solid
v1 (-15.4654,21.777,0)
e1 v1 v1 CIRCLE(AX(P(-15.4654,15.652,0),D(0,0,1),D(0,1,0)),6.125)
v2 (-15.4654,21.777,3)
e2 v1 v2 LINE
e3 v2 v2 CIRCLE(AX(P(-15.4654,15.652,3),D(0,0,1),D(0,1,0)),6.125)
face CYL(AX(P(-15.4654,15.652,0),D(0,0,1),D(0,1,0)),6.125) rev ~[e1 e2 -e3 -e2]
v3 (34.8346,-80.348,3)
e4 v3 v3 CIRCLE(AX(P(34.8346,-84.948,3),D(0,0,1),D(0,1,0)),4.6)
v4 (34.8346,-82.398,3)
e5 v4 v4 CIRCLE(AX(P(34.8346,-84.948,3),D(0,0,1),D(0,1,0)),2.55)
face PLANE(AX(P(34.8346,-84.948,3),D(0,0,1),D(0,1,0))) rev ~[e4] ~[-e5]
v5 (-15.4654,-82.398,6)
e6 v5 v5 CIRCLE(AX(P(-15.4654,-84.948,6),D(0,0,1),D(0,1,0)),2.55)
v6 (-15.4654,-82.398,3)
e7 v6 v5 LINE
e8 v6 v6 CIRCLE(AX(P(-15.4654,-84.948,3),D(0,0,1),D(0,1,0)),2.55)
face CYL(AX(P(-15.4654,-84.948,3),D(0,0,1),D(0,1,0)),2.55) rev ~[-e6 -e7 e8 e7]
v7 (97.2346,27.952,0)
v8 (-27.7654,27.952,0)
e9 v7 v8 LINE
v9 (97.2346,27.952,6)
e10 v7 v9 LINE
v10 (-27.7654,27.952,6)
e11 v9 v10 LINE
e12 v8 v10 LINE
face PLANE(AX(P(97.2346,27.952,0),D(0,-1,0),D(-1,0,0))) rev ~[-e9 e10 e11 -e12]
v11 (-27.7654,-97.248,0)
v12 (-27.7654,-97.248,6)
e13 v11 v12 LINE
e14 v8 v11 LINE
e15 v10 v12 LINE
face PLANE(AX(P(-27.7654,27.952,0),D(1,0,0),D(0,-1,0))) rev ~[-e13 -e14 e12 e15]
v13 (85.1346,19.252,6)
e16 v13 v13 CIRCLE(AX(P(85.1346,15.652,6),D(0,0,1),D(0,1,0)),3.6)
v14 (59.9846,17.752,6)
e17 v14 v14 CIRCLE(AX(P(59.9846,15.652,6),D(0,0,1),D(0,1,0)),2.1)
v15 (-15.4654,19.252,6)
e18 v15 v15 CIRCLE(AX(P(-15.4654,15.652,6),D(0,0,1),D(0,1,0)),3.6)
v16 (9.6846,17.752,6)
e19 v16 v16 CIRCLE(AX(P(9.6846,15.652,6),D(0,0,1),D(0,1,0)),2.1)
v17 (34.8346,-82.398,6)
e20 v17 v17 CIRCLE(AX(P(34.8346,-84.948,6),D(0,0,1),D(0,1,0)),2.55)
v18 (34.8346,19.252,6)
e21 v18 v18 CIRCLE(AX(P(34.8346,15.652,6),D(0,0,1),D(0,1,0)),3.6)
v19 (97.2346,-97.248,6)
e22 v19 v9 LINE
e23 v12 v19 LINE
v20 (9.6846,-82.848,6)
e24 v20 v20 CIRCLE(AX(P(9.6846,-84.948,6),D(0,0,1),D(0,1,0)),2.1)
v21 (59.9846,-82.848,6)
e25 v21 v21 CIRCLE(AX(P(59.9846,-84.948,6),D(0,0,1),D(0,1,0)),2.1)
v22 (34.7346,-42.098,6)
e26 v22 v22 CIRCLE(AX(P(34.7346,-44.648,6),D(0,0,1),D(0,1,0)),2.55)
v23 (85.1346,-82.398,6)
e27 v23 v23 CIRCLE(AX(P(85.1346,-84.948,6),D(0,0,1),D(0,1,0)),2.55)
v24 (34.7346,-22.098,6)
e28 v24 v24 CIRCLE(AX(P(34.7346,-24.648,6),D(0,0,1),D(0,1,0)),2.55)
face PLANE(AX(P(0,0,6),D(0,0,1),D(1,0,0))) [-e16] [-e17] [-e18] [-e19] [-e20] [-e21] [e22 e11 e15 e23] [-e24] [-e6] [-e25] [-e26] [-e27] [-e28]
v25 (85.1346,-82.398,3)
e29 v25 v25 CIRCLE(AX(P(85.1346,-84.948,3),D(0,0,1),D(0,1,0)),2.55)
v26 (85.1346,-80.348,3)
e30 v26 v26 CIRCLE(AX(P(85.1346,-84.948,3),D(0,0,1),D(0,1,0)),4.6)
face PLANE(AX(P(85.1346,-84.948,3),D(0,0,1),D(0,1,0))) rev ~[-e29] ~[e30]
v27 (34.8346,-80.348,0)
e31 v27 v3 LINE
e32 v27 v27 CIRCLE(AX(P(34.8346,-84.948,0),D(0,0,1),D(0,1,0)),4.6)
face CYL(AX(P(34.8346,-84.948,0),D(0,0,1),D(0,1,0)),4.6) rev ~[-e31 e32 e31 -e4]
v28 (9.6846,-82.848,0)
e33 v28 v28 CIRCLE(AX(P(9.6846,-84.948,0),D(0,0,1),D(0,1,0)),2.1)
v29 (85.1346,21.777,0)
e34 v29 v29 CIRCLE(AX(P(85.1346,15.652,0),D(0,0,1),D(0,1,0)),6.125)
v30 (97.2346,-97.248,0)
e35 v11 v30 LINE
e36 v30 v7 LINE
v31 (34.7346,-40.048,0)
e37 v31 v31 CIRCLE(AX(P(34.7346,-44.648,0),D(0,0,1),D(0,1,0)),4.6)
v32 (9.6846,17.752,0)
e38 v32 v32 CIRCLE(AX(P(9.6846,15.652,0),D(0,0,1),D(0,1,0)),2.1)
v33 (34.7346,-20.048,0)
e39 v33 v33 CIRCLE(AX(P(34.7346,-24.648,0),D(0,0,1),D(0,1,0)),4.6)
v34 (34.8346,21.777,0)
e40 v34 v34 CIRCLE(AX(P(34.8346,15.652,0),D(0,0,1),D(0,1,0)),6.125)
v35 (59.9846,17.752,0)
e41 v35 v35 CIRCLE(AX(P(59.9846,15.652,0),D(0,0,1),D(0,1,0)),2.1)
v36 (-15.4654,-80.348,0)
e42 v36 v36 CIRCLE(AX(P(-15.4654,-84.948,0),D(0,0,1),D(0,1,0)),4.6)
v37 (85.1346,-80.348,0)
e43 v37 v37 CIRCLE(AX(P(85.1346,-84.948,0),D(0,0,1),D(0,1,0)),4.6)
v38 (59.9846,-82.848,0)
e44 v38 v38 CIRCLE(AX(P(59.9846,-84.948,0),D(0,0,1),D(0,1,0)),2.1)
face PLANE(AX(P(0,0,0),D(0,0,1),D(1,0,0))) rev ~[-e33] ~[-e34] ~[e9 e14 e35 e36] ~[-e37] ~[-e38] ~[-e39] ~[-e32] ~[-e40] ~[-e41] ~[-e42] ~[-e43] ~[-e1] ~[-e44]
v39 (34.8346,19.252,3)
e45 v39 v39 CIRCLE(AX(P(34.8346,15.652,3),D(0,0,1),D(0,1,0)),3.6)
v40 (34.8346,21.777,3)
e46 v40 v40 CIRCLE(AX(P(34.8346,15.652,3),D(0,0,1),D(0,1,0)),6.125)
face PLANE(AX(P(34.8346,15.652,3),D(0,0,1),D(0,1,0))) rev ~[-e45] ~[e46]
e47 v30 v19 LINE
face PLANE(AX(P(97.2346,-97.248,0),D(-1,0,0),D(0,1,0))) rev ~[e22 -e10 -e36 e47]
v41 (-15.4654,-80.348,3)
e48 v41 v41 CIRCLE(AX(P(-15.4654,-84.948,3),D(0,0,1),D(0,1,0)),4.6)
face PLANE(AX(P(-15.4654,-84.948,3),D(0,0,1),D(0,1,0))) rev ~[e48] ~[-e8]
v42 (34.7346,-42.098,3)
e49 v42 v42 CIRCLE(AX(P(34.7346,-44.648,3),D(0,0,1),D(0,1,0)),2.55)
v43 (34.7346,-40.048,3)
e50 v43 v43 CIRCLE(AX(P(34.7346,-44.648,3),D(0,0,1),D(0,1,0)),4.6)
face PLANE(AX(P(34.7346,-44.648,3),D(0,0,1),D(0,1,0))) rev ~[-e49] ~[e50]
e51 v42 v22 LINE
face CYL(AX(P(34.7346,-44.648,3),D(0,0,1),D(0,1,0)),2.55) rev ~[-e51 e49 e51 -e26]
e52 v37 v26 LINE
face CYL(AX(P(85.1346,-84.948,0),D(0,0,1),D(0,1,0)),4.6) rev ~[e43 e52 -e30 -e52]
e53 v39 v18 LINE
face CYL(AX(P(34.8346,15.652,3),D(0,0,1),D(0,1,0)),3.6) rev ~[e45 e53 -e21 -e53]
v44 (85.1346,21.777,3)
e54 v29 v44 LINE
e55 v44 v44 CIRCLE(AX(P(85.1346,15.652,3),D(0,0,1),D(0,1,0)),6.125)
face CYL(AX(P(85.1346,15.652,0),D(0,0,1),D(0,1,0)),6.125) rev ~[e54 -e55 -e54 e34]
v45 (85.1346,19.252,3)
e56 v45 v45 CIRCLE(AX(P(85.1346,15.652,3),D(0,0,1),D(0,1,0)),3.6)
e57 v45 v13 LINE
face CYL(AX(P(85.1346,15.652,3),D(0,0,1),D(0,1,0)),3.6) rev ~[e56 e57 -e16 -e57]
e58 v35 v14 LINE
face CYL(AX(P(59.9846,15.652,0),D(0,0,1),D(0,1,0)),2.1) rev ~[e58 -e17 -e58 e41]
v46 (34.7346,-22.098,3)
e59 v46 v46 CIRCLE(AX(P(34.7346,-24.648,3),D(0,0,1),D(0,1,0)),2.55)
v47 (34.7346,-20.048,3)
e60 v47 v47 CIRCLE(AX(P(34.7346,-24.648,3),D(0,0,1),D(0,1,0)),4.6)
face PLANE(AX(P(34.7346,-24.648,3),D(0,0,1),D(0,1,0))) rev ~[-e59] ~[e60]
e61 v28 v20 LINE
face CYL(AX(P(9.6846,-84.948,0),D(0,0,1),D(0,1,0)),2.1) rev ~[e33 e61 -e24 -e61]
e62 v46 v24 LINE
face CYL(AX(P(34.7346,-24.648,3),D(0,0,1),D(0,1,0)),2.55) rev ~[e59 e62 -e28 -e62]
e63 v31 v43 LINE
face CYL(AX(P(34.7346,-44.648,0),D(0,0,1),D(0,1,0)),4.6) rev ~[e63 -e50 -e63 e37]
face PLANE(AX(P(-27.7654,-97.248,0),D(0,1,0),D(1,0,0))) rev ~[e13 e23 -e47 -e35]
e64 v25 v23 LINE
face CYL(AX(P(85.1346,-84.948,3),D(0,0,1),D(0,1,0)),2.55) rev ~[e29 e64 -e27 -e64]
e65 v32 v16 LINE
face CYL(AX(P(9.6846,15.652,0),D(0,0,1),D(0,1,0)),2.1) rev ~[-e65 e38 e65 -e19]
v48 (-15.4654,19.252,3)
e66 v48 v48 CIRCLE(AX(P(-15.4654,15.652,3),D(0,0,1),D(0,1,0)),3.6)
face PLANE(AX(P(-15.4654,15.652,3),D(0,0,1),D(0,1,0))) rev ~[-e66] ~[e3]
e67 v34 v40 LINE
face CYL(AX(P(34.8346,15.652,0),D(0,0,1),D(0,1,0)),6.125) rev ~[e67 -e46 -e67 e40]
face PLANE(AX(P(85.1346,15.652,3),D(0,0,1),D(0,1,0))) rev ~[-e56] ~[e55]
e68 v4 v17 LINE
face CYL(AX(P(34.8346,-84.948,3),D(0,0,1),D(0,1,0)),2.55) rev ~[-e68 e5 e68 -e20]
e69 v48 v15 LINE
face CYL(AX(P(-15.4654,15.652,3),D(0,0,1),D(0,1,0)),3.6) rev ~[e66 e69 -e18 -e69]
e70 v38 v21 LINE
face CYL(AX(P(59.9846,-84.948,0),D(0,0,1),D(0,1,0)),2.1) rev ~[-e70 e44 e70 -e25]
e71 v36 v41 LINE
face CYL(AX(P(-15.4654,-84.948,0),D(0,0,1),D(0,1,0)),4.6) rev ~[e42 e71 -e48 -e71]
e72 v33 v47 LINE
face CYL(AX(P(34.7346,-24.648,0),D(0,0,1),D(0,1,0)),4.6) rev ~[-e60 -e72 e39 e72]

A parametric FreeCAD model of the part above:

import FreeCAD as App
import Part
import Sketcher
from FreeCAD import Vector

doc = App.newDocument("Part")
params = doc.addObject("Spreadsheet::Sheet", "Params")
for row, (alias, value) in enumerate([
    ("sketch1_width", "125 mm"),
    ("sketch1_height", "125.2 mm"),
    ("pad1_length", "6 mm"),
    ("sketch2_diameter", "5.1 mm"),
    ("hole_diameter", "5.1 mm"),
    ("hole_cbore_diameter", "9.2 mm"),
    ("hole_cbore_depth", "3 mm"),
    ("sketch3_diameter", "7.2 mm"),
    ("hole2_diameter", "7.2 mm"),
    ("hole2_cbore_diameter", "12.25 mm"),
    ("hole2_cbore_depth", "3 mm"),
    ("sketch4_diameter", "5.1 mm"),
    ("hole3_diameter", "5.1 mm"),
    ("hole3_cbore_diameter", "9.2 mm"),
    ("hole3_cbore_depth", "3 mm"),
    ("sketch5_diameter", "4.2 mm"),
    ("hole4_diameter", "4.2 mm"),
], start=1):
    params.set(f"A{row}", alias)
    params.set(f"B{row}", "=" + value)
    params.setAlias(f"B{row}", alias)

body = doc.addObject("PartDesign::Body", "Body")

# Sketch on XY plane
sketch1 = doc.addObject("Sketcher::SketchObject", "Sketch")
body.addObject(sketch1)
sketch1.AttachmentSupport = (doc.XY_Plane, [""])
sketch1.MapMode = "FlatFace"
sketch1.addGeometry([
    Part.LineSegment(Vector(97.2346, -97.248, 0), Vector(97.2346, 27.952, 0)),
    Part.LineSegment(Vector(97.2346, 27.952, 0), Vector(-27.7654, 27.952, 0)),
    Part.LineSegment(Vector(-27.7654, 27.952, 0), Vector(-27.7654, -97.248, 0)),
    Part.LineSegment(Vector(-27.7654, -97.248, 0), Vector(97.2346, -97.248, 0)),
], False)
sketch1.addConstraint([
    Sketcher.Constraint("Coincident", 0, 2, 1, 1),
    Sketcher.Constraint("Coincident", 1, 2, 2, 1),
    Sketcher.Constraint("Coincident", 2, 2, 3, 1),
    Sketcher.Constraint("Coincident", 3, 2, 0, 1),
    Sketcher.Constraint("Vertical", 0),
    Sketcher.Constraint("Horizontal", 1),
    Sketcher.Constraint("Vertical", 2),
    Sketcher.Constraint("Horizontal", 3),
    Sketcher.Constraint("DistanceX", 1, 2, 1, 1, 125.0),
    Sketcher.Constraint("DistanceY", 0, 1, 0, 2, 125.2),
    Sketcher.Constraint("DistanceY", -1, 1, 0, 2, 27.952),
    Sketcher.Constraint("DistanceX", -1, 1, 0, 2, 97.2346),
])
sketch1.setExpression("Constraints[8]", "Params.sketch1_width")
sketch1.setExpression("Constraints[9]", "Params.sketch1_height")
pad1 = doc.addObject("PartDesign::Pad", "Pad")
body.addObject(pad1)
pad1.Profile = sketch1
pad1.setExpression("Length", "Params.pad1_length")

# Sketch on XY plane
sketch2 = doc.addObject("Sketcher::SketchObject", "Sketch001")
body.addObject(sketch2)
sketch2.AttachmentSupport = (doc.XY_Plane, [""])
sketch2.MapMode = "FlatFace"
sketch2.addGeometry([
    Part.Circle(Vector(85.1346, -84.948, 0), Vector(0, 0, 1), 2.55),
    Part.Circle(Vector(34.8346, -84.948, 0), Vector(0, 0, 1), 2.55),
    Part.Circle(Vector(-15.4654, -84.948, 0), Vector(0, 0, 1), 2.55),
], False)
sketch2.addConstraint([
    Sketcher.Constraint("Equal", 0, 1),
    Sketcher.Constraint("Equal", 1, 2),
    Sketcher.Constraint("Horizontal", 0, 3, 1, 3),
    Sketcher.Constraint("Horizontal", 1, 3, 2, 3),
    Sketcher.Constraint("Diameter", 0, 5.1),
    Sketcher.Constraint("DistanceX", 1, 3, 0, 3, 50.3),
    Sketcher.Constraint("DistanceX", 2, 3, 1, 3, 50.3),
    Sketcher.Constraint("DistanceY", 0, 3, -1, 1, 84.948),
    Sketcher.Constraint("DistanceX", -1, 1, 0, 3, 85.1346),
])
sketch2.setExpression("Constraints[4]", "Params.sketch2_diameter")
doc.recompute()
hole = doc.addObject("PartDesign::Hole", "Hole")
body.addObject(hole)
hole.Profile = sketch2
hole.ThreadType = "None"
hole.setExpression("Diameter", "Params.hole_diameter")
hole.DepthType = "ThroughAll"
hole.HoleCutType = "Counterbore"
hole.setExpression("HoleCutDiameter", "Params.hole_cbore_diameter")
hole.setExpression("HoleCutDepth", "Params.hole_cbore_depth")
hole.Reversed = True

# Sketch on XY plane
sketch3 = doc.addObject("Sketcher::SketchObject", "Sketch002")
body.addObject(sketch3)
sketch3.AttachmentSupport = (doc.XY_Plane, [""])
sketch3.MapMode = "FlatFace"
sketch3.addGeometry([
    Part.Circle(Vector(85.1346, 15.652, 0), Vector(0, 0, 1), 3.6),
    Part.Circle(Vector(34.8346, 15.652, 0), Vector(0, 0, 1), 3.6),
    Part.Circle(Vector(-15.4654, 15.652, 0), Vector(0, 0, 1), 3.6),
], False)
sketch3.addConstraint([
    Sketcher.Constraint("Equal", 0, 1),
    Sketcher.Constraint("Equal", 1, 2),
    Sketcher.Constraint("Horizontal", 0, 3, 1, 3),
    Sketcher.Constraint("Horizontal", 1, 3, 2, 3),
    Sketcher.Constraint("Diameter", 0, 7.2),
    Sketcher.Constraint("DistanceX", 1, 3, 0, 3, 50.3),
    Sketcher.Constraint("DistanceX", 2, 3, 1, 3, 50.3),
    Sketcher.Constraint("DistanceY", -1, 1, 0, 3, 15.652),
    Sketcher.Constraint("DistanceX", -1, 1, 0, 3, 85.1346),
])
sketch3.setExpression("Constraints[4]", "Params.sketch3_diameter")
doc.recompute()
hole2 = doc.addObject("PartDesign::Hole", "Hole001")
body.addObject(hole2)
hole2.Profile = sketch3
hole2.ThreadType = "None"
hole2.setExpression("Diameter", "Params.hole2_diameter")
hole2.DepthType = "ThroughAll"
hole2.HoleCutType = "Counterbore"
hole2.setExpression("HoleCutDiameter", "Params.hole2_cbore_diameter")
hole2.setExpression("HoleCutDepth", "Params.hole2_cbore_depth")
hole2.Reversed = True

# Sketch on XY plane
sketch4 = doc.addObject("Sketcher::SketchObject", "Sketch003")
body.addObject(sketch4)
sketch4.AttachmentSupport = (doc.XY_Plane, [""])
sketch4.MapMode = "FlatFace"
sketch4.addGeometry([
    Part.Circle(Vector(34.7346, -44.648, 0), Vector(0, 0, 1), 2.55),
    Part.Circle(Vector(34.7346, -24.648, 0), Vector(0, 0, 1), 2.55),
], False)
sketch4.addConstraint([
    Sketcher.Constraint("Equal", 0, 1),
    Sketcher.Constraint("Vertical", 0, 3, 1, 3),
    Sketcher.Constraint("Diameter", 0, 5.1),
    Sketcher.Constraint("DistanceY", 0, 3, 1, 3, 20.0),
    Sketcher.Constraint("DistanceY", 0, 3, -1, 1, 44.648),
    Sketcher.Constraint("DistanceX", -1, 1, 0, 3, 34.7346),
])
sketch4.setExpression("Constraints[2]", "Params.sketch4_diameter")
doc.recompute()
hole3 = doc.addObject("PartDesign::Hole", "Hole002")
body.addObject(hole3)
hole3.Profile = sketch4
hole3.ThreadType = "None"
hole3.setExpression("Diameter", "Params.hole3_diameter")
hole3.DepthType = "ThroughAll"
hole3.HoleCutType = "Counterbore"
hole3.setExpression("HoleCutDiameter", "Params.hole3_cbore_diameter")
hole3.setExpression("HoleCutDepth", "Params.hole3_cbore_depth")
hole3.Reversed = True

# Sketch on XY plane
sketch5 = doc.addObject("Sketcher::SketchObject", "Sketch004")
body.addObject(sketch5)
sketch5.AttachmentSupport = (doc.XY_Plane, [""])
sketch5.MapMode = "FlatFace"
sketch5.addGeometry([
    Part.Circle(Vector(59.9846, 15.652, 0), Vector(0, 0, 1), 2.1),
    Part.Circle(Vector(9.6846, 15.652, 0), Vector(0, 0, 1), 2.1),
    Part.Circle(Vector(59.9846, -84.948, 0), Vector(0, 0, 1), 2.1),
    Part.Circle(Vector(9.6846, -84.948, 0), Vector(0, 0, 1), 2.1),
], False)
sketch5.addConstraint([
    Sketcher.Constraint("Equal", 0, 1),
    Sketcher.Constraint("Equal", 1, 2),
    Sketcher.Constraint("Equal", 2, 3),
    Sketcher.Constraint("Horizontal", 0, 3, 1, 3),
    Sketcher.Constraint("Horizontal", 2, 3, 3, 3),
    Sketcher.Constraint("Vertical", 0, 3, 2, 3),
    Sketcher.Constraint("Vertical", 1, 3, 3, 3),
    Sketcher.Constraint("Diameter", 0, 4.2),
    Sketcher.Constraint("DistanceX", 1, 3, 0, 3, 50.3),
    Sketcher.Constraint("DistanceY", 2, 3, 0, 3, 100.6),
    Sketcher.Constraint("DistanceY", -1, 1, 0, 3, 15.652),
    Sketcher.Constraint("DistanceX", -1, 1, 0, 3, 59.9846),
])
sketch5.setExpression("Constraints[7]", "Params.sketch5_diameter")
doc.recompute()
hole4 = doc.addObject("PartDesign::Hole", "Hole003")
body.addObject(hole4)
hole4.Profile = sketch5
hole4.ThreadType = "None"
hole4.setExpression("Diameter", "Params.hole4_diameter")
hole4.DepthType = "ThroughAll"
hole4.Reversed = True

doc.recompute()
